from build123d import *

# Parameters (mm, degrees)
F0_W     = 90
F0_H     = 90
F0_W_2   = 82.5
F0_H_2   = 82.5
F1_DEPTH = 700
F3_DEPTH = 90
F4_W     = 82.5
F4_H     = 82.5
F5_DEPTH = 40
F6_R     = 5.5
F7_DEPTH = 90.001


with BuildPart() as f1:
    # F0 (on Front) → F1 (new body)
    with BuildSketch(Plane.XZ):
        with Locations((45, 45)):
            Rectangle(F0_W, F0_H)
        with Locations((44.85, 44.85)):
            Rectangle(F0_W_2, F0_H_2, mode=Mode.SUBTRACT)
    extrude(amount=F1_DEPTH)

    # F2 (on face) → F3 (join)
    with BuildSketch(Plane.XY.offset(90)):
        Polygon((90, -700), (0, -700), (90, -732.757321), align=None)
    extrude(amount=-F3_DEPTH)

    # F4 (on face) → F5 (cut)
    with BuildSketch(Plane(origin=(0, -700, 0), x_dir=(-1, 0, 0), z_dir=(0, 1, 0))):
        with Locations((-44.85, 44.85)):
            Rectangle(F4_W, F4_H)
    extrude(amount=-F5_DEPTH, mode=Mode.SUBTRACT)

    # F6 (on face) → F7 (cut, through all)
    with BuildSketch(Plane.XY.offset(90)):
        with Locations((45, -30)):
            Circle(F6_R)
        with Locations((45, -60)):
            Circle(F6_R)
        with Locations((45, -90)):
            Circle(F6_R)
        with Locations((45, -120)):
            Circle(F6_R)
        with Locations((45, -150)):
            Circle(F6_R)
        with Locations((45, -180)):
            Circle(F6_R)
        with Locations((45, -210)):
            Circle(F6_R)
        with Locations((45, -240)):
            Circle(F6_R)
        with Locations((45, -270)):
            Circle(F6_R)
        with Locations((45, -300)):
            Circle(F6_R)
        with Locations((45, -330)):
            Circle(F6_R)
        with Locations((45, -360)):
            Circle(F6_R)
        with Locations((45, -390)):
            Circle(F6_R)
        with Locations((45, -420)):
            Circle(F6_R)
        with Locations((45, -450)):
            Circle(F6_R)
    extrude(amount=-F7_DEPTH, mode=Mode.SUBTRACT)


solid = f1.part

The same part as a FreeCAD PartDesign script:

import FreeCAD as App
import Part
import Sketcher
from FreeCAD import Vector
Q = App.Units.Quantity

doc = App.newDocument("Part")
body = doc.addObject("PartDesign::Body", "Body")

# Sketch on XZ plane
sketch1 = doc.addObject("Sketcher::SketchObject", "Sketch")
body.addObject(sketch1)
sketch1.AttachmentSupport = (doc.XZ_Plane, [""])
sketch1.MapMode = "FlatFace"
sketch1.addGeometry(Part.LineSegment(Vector(0, 90, 0), Vector(0, 0, 0)), False)
sketch1.addGeometry(Part.LineSegment(Vector(0, 0, 0), Vector(90, 0, 0)), False)
sketch1.addGeometry(Part.LineSegment(Vector(90, 0, 0), Vector(90, 90, 0)), False)
sketch1.addGeometry(Part.LineSegment(Vector(90, 90, 0), Vector(0, 90, 0)), False)
sketch1.addGeometry(Part.LineSegment(Vector(86, 4, 0), Vector(4, 4, 0)), False)
sketch1.addGeometry(Part.LineSegment(Vector(4, 4, 0), Vector(4, 86, 0)), False)
sketch1.addGeometry(Part.LineSegment(Vector(4, 86, 0), Vector(86, 86, 0)), False)
sketch1.addGeometry(Part.LineSegment(Vector(86, 86, 0), Vector(86, 4, 0)), False)
sketch1.addConstraint(Sketcher.Constraint("Coincident", 0, 2, 1, 1))
sketch1.addConstraint(Sketcher.Constraint("Coincident", 1, 2, 2, 1))
sketch1.addConstraint(Sketcher.Constraint("Coincident", 2, 2, 3, 1))
sketch1.addConstraint(Sketcher.Constraint("Coincident", 3, 2, 0, 1))
sketch1.addConstraint(Sketcher.Constraint("Coincident", 4, 2, 5, 1))
sketch1.addConstraint(Sketcher.Constraint("Coincident", 5, 2, 6, 1))
sketch1.addConstraint(Sketcher.Constraint("Coincident", 6, 2, 7, 1))
sketch1.addConstraint(Sketcher.Constraint("Coincident", 7, 2, 4, 1))
sketch1.addConstraint(Sketcher.Constraint("Vertical", 0))
sketch1.addConstraint(Sketcher.Constraint("Horizontal", 1))
sketch1.addConstraint(Sketcher.Constraint("Vertical", 2))
sketch1.addConstraint(Sketcher.Constraint("Horizontal", 3))
sketch1.addConstraint(Sketcher.Constraint("Horizontal", 4))
sketch1.addConstraint(Sketcher.Constraint("Vertical", 5))
sketch1.addConstraint(Sketcher.Constraint("Horizontal", 6))
sketch1.addConstraint(Sketcher.Constraint("Vertical", 7))
sketch1.addConstraint(Sketcher.Constraint("Coincident", 0, 2, -1, 1))
sketch1.addConstraint(Sketcher.Constraint("Equal", 3, 0))
sketch1.addConstraint(Sketcher.Constraint("Equal", 6, 5))
sketch1.addConstraint(Sketcher.Constraint("DistanceX", 1, 1, 1, 2, Q("90 mm")))
sketch1.addConstraint(Sketcher.Constraint("DistanceX", 4, 2, 4, 1, Q("82.5 mm")))
sketch1.addConstraint(Sketcher.Constraint("DistanceX", -1, 1, 4, 2, Q("3.6 mm")))
sketch1.addConstraint(Sketcher.Constraint("DistanceY", -1, 1, 4, 2, Q("3.6 mm")))
pad1 = doc.addObject("PartDesign::Pad", "Pad")
body.addObject(pad1)
pad1.Profile = sketch1
pad1.Length = 700

# Sketch on XY plane
sketch2 = doc.addObject("Sketcher::SketchObject", "Sketch001")
body.addObject(sketch2)
sketch2.AttachmentSupport = (doc.XY_Plane, [""])
sketch2.MapMode = "FlatFace"
sketch2.AttachmentOffset = App.Placement(Vector(0, 0, 90), App.Rotation())
sketch2.addGeometry(Part.LineSegment(Vector(90, -700, 0), Vector(0, -700, 0)), False)
sketch2.addGeometry(Part.LineSegment(Vector(0, -700, 0), Vector(90, -733, 0)), False)
sketch2.addGeometry(Part.LineSegment(Vector(90, -733, 0), Vector(90, -700, 0)), False)
sketch2.addConstraint(Sketcher.Constraint("Coincident", 0, 2, 1, 1))
sketch2.addConstraint(Sketcher.Constraint("Coincident", 1, 2, 2, 1))
sketch2.addConstraint(Sketcher.Constraint("Coincident", 2, 2, 0, 1))
sketch2.addConstraint(Sketcher.Constraint("Horizontal", 0))
sketch2.addConstraint(Sketcher.Constraint("Vertical", 2))
sketch2.addConstraint(Sketcher.Constraint("PointOnObject", 0, 2, -2))
sketch2.addConstraint(Sketcher.Constraint("DistanceX", 0, 2, 0, 1, Q("90 mm")))
sketch2.addConstraint(Sketcher.Constraint("Angle", 1, Q("-20 deg")))
sketch2.addConstraint(Sketcher.Constraint("DistanceY", 0, 2, -1, 1, Q("700 mm")))
pad2 = doc.addObject("PartDesign::Pad", "Pad001")
body.addObject(pad2)
pad2.Profile = sketch2
pad2.Length = 90
pad2.Reversed = True

# Sketch on XZ plane
sketch3 = doc.addObject("Sketcher::SketchObject", "Sketch002")
body.addObject(sketch3)
sketch3.AttachmentSupport = (doc.XZ_Plane, [""])
sketch3.MapMode = "FlatFace"
sketch3.AttachmentOffset = App.Placement(Vector(0, 0, 700), App.Rotation())
sketch3.addGeometry(Part.LineSegment(Vector(86, 86, 0), Vector(86, 4, 0)), False)
sketch3.addGeometry(Part.LineSegment(Vector(86, 4, 0), Vector(4, 4, 0)), False)
sketch3.addGeometry(Part.LineSegment(Vector(4, 4, 0), Vector(4, 86, 0)), False)
sketch3.addGeometry(Part.LineSegment(Vector(4, 86, 0), Vector(86, 86, 0)), False)
sketch3.addConstraint(Sketcher.Constraint("Coincident", 0, 2, 1, 1))
sketch3.addConstraint(Sketcher.Constraint("Coincident", 1, 2, 2, 1))
sketch3.addConstraint(Sketcher.Constraint("Coincident", 2, 2, 3, 1))
sketch3.addConstraint(Sketcher.Constraint("Coincident", 3, 2, 0, 1))
sketch3.addConstraint(Sketcher.Constraint("Vertical", 0))
sketch3.addConstraint(Sketcher.Constraint("Horizontal", 1))
sketch3.addConstraint(Sketcher.Constraint("Vertical", 2))
sketch3.addConstraint(Sketcher.Constraint("Horizontal", 3))
sketch3.addConstraint(Sketcher.Constraint("Equal", 3, 0))
sketch3.addConstraint(Sketcher.Constraint("DistanceX", 1, 2, 1, 1, Q("82.5 mm")))
sketch3.addConstraint(Sketcher.Constraint("DistanceX", -1, 1, 0, 2, Q("86.1 mm")))
sketch3.addConstraint(Sketcher.Constraint("DistanceY", -1, 1, 0, 2, Q("3.6 mm")))
pocket1 = doc.addObject("PartDesign::Pocket", "Pocket")
body.addObject(pocket1)
pocket1.Profile = sketch3
pocket1.Length = 40
pocket1.Reversed = True

# Sketch on XY plane
sketch4 = doc.addObject("Sketcher::SketchObject", "Sketch003")
body.addObject(sketch4)
sketch4.AttachmentSupport = (doc.XY_Plane, [""])
sketch4.MapMode = "FlatFace"
sketch4.AttachmentOffset = App.Placement(Vector(0, 0, 90), App.Rotation())
sketch4.addGeometry(Part.Circle(Vector(45, -30, 0), Vector(0, 0, 1), 6), False)
sketch4.addGeometry(Part.Circle(Vector(45, -60, 0), Vector(0, 0, 1), 6), False)
sketch4.addGeometry(Part.Circle(Vector(45, -90, 0), Vector(0, 0, 1), 6), False)
sketch4.addGeometry(Part.Circle(Vector(45, -120, 0), Vector(0, 0, 1), 6), False)
sketch4.addGeometry(Part.Circle(Vector(45, -150, 0), Vector(0, 0, 1), 6), False)
sketch4.addGeometry(Part.Circle(Vector(45, -180, 0), Vector(0, 0, 1), 6), False)
sketch4.addGeometry(Part.Circle(Vector(45, -210, 0), Vector(0, 0, 1), 6), False)
sketch4.addGeometry(Part.Circle(Vector(45, -240, 0), Vector(0, 0, 1), 6), False)
sketch4.addGeometry(Part.Circle(Vector(45, -270, 0), Vector(0, 0, 1), 6), False)
sketch4.addGeometry(Part.Circle(Vector(45, -300, 0), Vector(0, 0, 1), 6), False)
sketch4.addGeometry(Part.Circle(Vector(45, -330, 0), Vector(0, 0, 1), 6), False)
sketch4.addGeometry(Part.Circle(Vector(45, -360, 0), Vector(0, 0, 1), 6), False)
sketch4.addGeometry(Part.Circle(Vector(45, -390, 0), Vector(0, 0, 1), 6), False)
sketch4.addGeometry(Part.Circle(Vector(45, -420, 0), Vector(0, 0, 1), 6), False)
sketch4.addGeometry(Part.Circle(Vector(45, -450, 0), Vector(0, 0, 1), 6), False)
sketch4.addConstraint(Sketcher.Constraint("Equal", 0, 1))
sketch4.addConstraint(Sketcher.Constraint("Equal", 1, 2))
sketch4.addConstraint(Sketcher.Constraint("Equal", 2, 3))
sketch4.addConstraint(Sketcher.Constraint("Equal", 3, 4))
sketch4.addConstraint(Sketcher.Constraint("Equal", 4, 5))
sketch4.addConstraint(Sketcher.Constraint("Equal", 5, 6))
sketch4.addConstraint(Sketcher.Constraint("Equal", 6, 7))
sketch4.addConstraint(Sketcher.Constraint("Equal", 7, 8))
sketch4.addConstraint(Sketcher.Constraint("Equal", 8, 9))
sketch4.addConstraint(Sketcher.Constraint("Equal", 9, 10))
sketch4.addConstraint(Sketcher.Constraint("Equal", 10, 11))
sketch4.addConstraint(Sketcher.Constraint("Equal", 11, 12))
sketch4.addConstraint(Sketcher.Constraint("Equal", 12, 13))
sketch4.addConstraint(Sketcher.Constraint("Equal", 13, 14))
sketch4.addConstraint(Sketcher.Constraint("Vertical", 0, 3, 1, 3))
sketch4.addConstraint(Sketcher.Constraint("Vertical", 1, 3, 2, 3))
sketch4.addConstraint(Sketcher.Constraint("Vertical", 2, 3, 3, 3))
sketch4.addConstraint(Sketcher.Constraint("Vertical", 3, 3, 4, 3))
sketch4.addConstraint(Sketcher.Constraint("Vertical", 4, 3, 5, 3))
sketch4.addConstraint(Sketcher.Constraint("Vertical", 5, 3, 6, 3))
sketch4.addConstraint(Sketcher.Constraint("Vertical", 6, 3, 7, 3))
sketch4.addConstraint(Sketcher.Constraint("Vertical", 7, 3, 8, 3))
sketch4.addConstraint(Sketcher.Constraint("Vertical", 8, 3, 9, 3))
sketch4.addConstraint(Sketcher.Constraint("Vertical", 9, 3, 10, 3))
sketch4.addConstraint(Sketcher.Constraint("Vertical", 10, 3, 11, 3))
sketch4.addConstraint(Sketcher.Constraint("Vertical", 11, 3, 12, 3))
sketch4.addConstraint(Sketcher.Constraint("Vertical", 12, 3, 13, 3))
sketch4.addConstraint(Sketcher.Constraint("Vertical", 13, 3, 14, 3))
sketch4.addConstraint(Sketcher.Constraint("Diameter", 0, Q("11 mm")))
sketch4.addConstraint(Sketcher.Constraint("DistanceX", -1, 1, 0, 3, Q("45 mm")))
sketch4.addConstraint(Sketcher.Constraint("DistanceY", 0, 3, -1, 1, Q("30 mm")))
sketch4.addConstraint(Sketcher.Constraint("DistanceY", 1, 3, -1, 1, Q("60 mm")))
sketch4.addConstraint(Sketcher.Constraint("DistanceY", 2, 3, -1, 1, Q("90 mm")))
sketch4.addConstraint(Sketcher.Constraint("DistanceY", 3, 3, -1, 1, Q("120 mm")))
sketch4.addConstraint(Sketcher.Constraint("DistanceY", 4, 3, -1, 1, Q("150 mm")))
sketch4.addConstraint(Sketcher.Constraint("DistanceY", 5, 3, -1, 1, Q("180 mm")))
sketch4.addConstraint(Sketcher.Constraint("DistanceY", 6, 3, -1, 1, Q("210 mm")))
sketch4.addConstraint(Sketcher.Constraint("DistanceY", 7, 3, -1, 1, Q("240 mm")))
sketch4.addConstraint(Sketcher.Constraint("DistanceY", 8, 3, -1, 1, Q("270 mm")))
sketch4.addConstraint(Sketcher.Constraint("DistanceY", 9, 3, -1, 1, Q("300 mm")))
sketch4.addConstraint(Sketcher.Constraint("DistanceY", 10, 3, -1, 1, Q("330 mm")))
sketch4.addConstraint(Sketcher.Constraint("DistanceY", 11, 3, -1, 1, Q("360 mm")))
sketch4.addConstraint(Sketcher.Constraint("DistanceY", 12, 3, -1, 1, Q("390 mm")))
sketch4.addConstraint(Sketcher.Constraint("DistanceY", 13, 3, -1, 1, Q("420 mm")))
sketch4.addConstraint(Sketcher.Constraint("DistanceY", 14, 3, -1, 1, Q("450 mm")))
pocket2 = doc.addObject("PartDesign::Pocket", "Pocket001")
body.addObject(pocket2)
pocket2.Profile = sketch4
pocket2.Type = "ThroughAll"

doc.recompute()
